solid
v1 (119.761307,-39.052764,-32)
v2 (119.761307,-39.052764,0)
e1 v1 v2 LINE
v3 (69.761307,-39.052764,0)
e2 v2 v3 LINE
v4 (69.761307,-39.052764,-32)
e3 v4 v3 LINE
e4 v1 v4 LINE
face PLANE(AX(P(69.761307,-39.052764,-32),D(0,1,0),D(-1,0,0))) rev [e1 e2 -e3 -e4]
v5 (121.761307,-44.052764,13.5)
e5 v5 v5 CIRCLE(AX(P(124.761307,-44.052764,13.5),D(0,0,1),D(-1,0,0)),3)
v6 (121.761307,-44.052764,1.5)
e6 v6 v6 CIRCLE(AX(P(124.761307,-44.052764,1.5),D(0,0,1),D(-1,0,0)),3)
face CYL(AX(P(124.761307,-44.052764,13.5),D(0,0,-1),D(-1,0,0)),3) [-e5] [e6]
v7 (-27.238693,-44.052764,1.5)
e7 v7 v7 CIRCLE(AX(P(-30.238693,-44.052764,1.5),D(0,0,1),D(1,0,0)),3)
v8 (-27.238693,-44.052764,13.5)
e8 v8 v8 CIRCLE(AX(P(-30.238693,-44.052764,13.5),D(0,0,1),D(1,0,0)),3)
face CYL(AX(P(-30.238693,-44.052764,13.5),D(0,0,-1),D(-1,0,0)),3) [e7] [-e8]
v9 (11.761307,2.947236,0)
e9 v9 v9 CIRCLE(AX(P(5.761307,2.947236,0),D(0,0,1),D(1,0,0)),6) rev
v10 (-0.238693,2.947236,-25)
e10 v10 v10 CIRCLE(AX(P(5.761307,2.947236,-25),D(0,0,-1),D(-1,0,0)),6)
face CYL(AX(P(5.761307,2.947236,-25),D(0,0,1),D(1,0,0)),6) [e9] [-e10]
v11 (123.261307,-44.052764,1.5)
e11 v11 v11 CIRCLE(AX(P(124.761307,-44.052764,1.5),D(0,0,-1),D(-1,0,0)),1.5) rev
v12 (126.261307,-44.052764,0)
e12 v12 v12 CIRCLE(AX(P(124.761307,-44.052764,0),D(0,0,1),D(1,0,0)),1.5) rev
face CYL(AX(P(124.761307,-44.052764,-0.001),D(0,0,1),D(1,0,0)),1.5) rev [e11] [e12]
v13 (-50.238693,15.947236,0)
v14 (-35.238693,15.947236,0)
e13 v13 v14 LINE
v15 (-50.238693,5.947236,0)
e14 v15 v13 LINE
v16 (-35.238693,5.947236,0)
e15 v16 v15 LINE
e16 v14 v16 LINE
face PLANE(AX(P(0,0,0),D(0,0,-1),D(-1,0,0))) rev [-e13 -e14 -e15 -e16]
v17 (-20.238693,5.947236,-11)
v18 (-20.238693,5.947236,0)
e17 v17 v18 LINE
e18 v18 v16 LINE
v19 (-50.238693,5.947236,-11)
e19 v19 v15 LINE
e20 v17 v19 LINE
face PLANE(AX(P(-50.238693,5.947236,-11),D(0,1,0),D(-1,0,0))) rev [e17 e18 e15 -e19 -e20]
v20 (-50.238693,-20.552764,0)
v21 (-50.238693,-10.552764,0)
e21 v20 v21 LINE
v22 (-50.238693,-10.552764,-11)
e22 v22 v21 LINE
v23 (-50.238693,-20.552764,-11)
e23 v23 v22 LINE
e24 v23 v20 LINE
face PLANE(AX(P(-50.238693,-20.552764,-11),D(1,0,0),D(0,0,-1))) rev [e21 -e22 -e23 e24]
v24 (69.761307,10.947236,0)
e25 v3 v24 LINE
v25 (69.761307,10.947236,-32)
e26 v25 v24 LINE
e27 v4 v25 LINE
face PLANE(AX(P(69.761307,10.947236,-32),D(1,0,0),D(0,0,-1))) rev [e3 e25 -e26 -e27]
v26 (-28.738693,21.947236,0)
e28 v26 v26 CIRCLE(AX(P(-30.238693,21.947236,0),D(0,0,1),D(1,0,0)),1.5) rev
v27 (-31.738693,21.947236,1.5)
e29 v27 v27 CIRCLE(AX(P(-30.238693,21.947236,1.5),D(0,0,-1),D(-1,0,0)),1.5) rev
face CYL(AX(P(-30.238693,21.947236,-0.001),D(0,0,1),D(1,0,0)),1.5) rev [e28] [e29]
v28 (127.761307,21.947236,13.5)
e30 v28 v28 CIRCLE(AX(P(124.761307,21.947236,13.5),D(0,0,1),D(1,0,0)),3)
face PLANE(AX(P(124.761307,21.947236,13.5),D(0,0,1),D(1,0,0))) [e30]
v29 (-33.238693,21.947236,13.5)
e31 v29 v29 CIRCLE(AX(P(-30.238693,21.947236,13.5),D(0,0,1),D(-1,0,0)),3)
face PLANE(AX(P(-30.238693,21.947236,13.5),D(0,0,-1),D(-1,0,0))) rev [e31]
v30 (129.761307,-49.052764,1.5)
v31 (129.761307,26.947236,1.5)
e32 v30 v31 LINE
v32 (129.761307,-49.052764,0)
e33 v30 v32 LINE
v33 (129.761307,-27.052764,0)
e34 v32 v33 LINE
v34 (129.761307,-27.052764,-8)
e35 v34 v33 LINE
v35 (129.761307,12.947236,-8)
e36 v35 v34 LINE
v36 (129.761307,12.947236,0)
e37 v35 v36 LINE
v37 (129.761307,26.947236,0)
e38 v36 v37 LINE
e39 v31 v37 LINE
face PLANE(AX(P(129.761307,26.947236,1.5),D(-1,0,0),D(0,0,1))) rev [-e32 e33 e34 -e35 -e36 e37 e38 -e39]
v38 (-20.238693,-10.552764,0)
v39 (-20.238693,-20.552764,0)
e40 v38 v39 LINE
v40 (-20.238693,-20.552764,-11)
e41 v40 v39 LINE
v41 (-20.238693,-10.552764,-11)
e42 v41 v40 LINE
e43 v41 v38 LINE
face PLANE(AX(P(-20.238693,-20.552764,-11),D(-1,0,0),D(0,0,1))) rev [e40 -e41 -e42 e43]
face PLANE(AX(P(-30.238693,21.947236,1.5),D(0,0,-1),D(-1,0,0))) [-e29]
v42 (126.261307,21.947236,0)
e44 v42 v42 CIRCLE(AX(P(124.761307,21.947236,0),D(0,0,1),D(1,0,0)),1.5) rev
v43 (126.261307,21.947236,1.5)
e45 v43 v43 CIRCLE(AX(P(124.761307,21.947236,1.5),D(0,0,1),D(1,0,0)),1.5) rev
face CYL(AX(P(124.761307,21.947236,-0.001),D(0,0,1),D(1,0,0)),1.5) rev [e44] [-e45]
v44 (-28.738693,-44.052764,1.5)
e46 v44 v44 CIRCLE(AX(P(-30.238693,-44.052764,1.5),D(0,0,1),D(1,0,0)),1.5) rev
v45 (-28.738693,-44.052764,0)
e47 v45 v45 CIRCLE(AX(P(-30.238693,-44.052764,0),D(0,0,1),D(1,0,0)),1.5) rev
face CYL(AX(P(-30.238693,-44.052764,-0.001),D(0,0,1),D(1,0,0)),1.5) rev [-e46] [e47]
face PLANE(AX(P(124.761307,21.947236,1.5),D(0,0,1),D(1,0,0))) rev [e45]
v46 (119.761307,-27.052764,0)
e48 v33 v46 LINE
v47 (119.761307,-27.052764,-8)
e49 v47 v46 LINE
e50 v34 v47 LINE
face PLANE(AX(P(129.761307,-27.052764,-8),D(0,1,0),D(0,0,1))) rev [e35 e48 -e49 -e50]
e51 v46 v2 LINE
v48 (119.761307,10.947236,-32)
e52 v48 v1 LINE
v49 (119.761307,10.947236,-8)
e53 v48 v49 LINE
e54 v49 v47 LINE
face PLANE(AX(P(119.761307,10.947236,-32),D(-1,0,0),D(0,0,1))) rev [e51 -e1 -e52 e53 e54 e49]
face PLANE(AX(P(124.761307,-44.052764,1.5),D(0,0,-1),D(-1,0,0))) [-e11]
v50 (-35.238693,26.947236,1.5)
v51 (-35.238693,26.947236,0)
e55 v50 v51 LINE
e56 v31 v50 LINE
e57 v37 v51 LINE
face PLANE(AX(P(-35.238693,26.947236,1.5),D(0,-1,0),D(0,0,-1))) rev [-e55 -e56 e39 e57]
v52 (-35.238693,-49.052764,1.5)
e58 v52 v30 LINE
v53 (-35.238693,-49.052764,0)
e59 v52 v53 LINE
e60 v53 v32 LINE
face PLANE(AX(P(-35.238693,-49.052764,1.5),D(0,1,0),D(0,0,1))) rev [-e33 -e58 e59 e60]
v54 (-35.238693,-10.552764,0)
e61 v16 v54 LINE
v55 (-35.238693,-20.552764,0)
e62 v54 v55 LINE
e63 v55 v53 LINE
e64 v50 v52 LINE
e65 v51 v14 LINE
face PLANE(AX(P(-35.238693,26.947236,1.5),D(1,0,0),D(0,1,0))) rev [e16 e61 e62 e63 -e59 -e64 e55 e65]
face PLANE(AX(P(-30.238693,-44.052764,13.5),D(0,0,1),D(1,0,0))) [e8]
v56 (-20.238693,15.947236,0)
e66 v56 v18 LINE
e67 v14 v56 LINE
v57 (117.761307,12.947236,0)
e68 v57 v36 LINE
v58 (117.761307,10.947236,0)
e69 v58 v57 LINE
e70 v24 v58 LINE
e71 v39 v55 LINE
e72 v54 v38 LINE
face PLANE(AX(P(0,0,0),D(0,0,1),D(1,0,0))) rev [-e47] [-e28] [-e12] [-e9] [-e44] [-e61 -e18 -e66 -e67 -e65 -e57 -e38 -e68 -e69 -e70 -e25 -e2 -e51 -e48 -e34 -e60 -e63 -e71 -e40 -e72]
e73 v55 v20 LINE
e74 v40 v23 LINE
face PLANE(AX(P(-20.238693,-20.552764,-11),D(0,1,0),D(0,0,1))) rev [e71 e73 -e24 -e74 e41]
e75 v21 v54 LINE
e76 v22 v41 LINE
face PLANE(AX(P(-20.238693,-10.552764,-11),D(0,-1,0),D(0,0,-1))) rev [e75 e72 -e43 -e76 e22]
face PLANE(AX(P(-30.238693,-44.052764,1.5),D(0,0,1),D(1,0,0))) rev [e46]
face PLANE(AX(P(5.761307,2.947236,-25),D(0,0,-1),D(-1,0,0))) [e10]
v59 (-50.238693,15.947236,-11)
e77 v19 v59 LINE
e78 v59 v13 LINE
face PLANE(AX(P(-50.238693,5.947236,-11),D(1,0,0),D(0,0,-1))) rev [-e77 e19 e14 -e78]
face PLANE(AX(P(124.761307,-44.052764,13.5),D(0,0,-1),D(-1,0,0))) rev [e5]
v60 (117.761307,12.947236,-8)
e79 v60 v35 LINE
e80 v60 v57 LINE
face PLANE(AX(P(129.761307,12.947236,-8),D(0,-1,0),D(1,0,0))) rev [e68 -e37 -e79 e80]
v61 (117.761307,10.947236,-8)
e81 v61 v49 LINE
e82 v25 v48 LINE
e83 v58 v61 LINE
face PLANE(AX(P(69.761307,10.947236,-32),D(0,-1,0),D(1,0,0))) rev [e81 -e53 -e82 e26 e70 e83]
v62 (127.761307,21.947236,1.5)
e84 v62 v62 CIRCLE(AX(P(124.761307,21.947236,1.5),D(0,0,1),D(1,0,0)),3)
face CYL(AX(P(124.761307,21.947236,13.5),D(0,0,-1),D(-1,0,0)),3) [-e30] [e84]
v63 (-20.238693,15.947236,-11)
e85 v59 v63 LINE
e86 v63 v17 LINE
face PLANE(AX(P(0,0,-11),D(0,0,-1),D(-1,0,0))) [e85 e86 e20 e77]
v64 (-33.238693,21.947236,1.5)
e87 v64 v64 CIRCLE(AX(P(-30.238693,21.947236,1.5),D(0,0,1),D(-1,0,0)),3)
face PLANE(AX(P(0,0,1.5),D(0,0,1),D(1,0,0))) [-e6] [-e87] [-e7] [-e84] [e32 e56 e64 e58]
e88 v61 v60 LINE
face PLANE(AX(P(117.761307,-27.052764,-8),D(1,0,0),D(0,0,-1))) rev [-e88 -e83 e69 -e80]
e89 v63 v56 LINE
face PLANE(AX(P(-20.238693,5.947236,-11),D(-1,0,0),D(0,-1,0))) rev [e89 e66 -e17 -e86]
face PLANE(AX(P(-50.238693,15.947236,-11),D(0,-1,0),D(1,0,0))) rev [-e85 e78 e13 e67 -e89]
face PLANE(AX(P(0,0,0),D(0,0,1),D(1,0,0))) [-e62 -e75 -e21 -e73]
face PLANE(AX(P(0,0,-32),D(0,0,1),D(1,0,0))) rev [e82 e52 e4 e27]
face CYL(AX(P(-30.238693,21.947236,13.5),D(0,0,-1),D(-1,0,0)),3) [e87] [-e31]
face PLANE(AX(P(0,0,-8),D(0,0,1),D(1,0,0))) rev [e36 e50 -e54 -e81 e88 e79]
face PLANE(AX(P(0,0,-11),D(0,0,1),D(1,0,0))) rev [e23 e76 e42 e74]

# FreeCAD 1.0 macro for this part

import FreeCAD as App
import Part
import Sketcher
Q = App.Units.Quantity

doc = App.newDocument("Part")
body = doc.addObject("PartDesign::Body", "Body")

sketch1 = doc.addObject("Sketcher::SketchObject", "Sketch")
body.addObject(sketch1)
sketch1.AttachmentSupport = (doc.XY_Plane, [""])
sketch1.MapMode = "FlatFace"
sketch1.addGeometry([
    Part.LineSegment(App.Vector(-35.238693, 26.947236, 0), App.Vector(-35.238693, -49.052764, 0)),
    Part.LineSegment(App.Vector(-35.238693, -49.052764, 0), App.Vector(129.761307, -49.052764, 0)),
    Part.LineSegment(App.Vector(129.761307, -49.052764, 0), App.Vector(129.761307, 26.947236, 0)),
    Part.LineSegment(App.Vector(129.761307, 26.947236, 0), App.Vector(-35.238693, 26.947236, 0)),
], False)
sketch1.addConstraint([
    Sketcher.Constraint("Coincident", 0, 2, 1, 1),
    Sketcher.Constraint("Coincident", 1, 2, 2, 1),
    Sketcher.Constraint("Coincident", 2, 2, 3, 1),
    Sketcher.Constraint("Coincident", 3, 2, 0, 1),
    Sketcher.Constraint("Vertical", 0),
    Sketcher.Constraint("Horizontal", 1),
    Sketcher.Constraint("Vertical", 2),
    Sketcher.Constraint("Horizontal", 3),
    Sketcher.Constraint("DistanceX", 1, 1, 1, 2, Q("165 mm")),
    Sketcher.Constraint("DistanceY", 0, 2, 0, 1, Q("76 mm")),
    Sketcher.Constraint("DistanceX", 0, 2, -1, 1, Q("35.238693 mm")),
    Sketcher.Constraint("DistanceY", 0, 2, -1, 1, Q("49.052764 mm")),
])
pad1 = doc.addObject("PartDesign::Pad", "Pad")
body.addObject(pad1)
pad1.Profile = sketch1
pad1.Length = 1.5

sketch2 = doc.addObject("Sketcher::SketchObject", "Sketch001")
body.addObject(sketch2)
sketch2.AttachmentSupport = (doc.XY_Plane, [""])
sketch2.MapMode = "FlatFace"
sketch2.AttachmentOffset = App.Placement(App.Vector(0, 0, 1.5), App.Rotation())
sketch2.addGeometry(Part.Circle(App.Vector(124.761307, 21.947236, 0), App.Vector(0, 0, 1), 1.5), False)
sketch2.addConstraint([
    Sketcher.Constraint("Diameter", 0, Q("3 mm")),
    Sketcher.Constraint("DistanceX", -1, 1, 0, 3, Q("124.761307 mm")),
    Sketcher.Constraint("DistanceY", -1, 1, 0, 3, Q("21.947236 mm")),
])
pocket1 = doc.addObject("PartDesign::Pocket", "Pocket")
body.addObject(pocket1)
pocket1.Profile = sketch2
pocket1.Type = "UpToFirst"

sketch3 = doc.addObject("Sketcher::SketchObject", "Sketch002")
body.addObject(sketch3)
sketch3.AttachmentSupport = (doc.XY_Plane, [""])
sketch3.MapMode = "FlatFace"
sketch3.AttachmentOffset = App.Placement(App.Vector(0, 0, 1.5), App.Rotation())
sketch3.addGeometry(Part.Circle(App.Vector(124.761307, -44.052764, 0), App.Vector(0, 0, 1), 1.5), False)
sketch3.addConstraint([
    Sketcher.Constraint("Diameter", 0, Q("3 mm")),
    Sketcher.Constraint("DistanceX", -1, 1, 0, 3, Q("124.761307 mm")),
    Sketcher.Constraint("DistanceY", 0, 3, -1, 1, Q("44.052764 mm")),
])
pocket2 = doc.addObject("PartDesign::Pocket", "Pocket001")
body.addObject(pocket2)
pocket2.Profile = sketch3
pocket2.Type = "UpToFirst"

sketch4 = doc.addObject("Sketcher::SketchObject", "Sketch003")
body.addObject(sketch4)
sketch4.AttachmentSupport = (doc.XY_Plane, [""])
sketch4.MapMode = "FlatFace"
sketch4.AttachmentOffset = App.Placement(App.Vector(0, 0, 1.5), App.Rotation())
sketch4.addGeometry(Part.Circle(App.Vector(-30.238693, -44.052764, 0), App.Vector(0, 0, 1), 1.5), False)
sketch4.addConstraint([
    Sketcher.Constraint("Diameter", 0, Q("3 mm")),
    Sketcher.Constraint("DistanceX", 0, 3, -1, 1, Q("30.238693 mm")),
    Sketcher.Constraint("DistanceY", 0, 3, -1, 1, Q("44.052764 mm")),
])
pocket3 = doc.addObject("PartDesign::Pocket", "Pocket002")
body.addObject(pocket3)
pocket3.Profile = sketch4
pocket3.Type = "UpToFirst"

sketch5 = doc.addObject("Sketcher::SketchObject", "Sketch004")
body.addObject(sketch5)
sketch5.AttachmentSupport = (doc.XY_Plane, [""])
sketch5.MapMode = "FlatFace"
sketch5.AttachmentOffset = App.Placement(App.Vector(0, 0, 1.5), App.Rotation())
sketch5.addGeometry(Part.Circle(App.Vector(-30.238693, 21.947236, 0), App.Vector(0, 0, 1), 1.5), False)
sketch5.addConstraint([
    Sketcher.Constraint("Diameter", 0, Q("3 mm")),
    Sketcher.Constraint("DistanceX", 0, 3, -1, 1, Q("30.238693 mm")),
    Sketcher.Constraint("DistanceY", -1, 1, 0, 3, Q("21.947236 mm")),
])
pocket4 = doc.addObject("PartDesign::Pocket", "Pocket003")
body.addObject(pocket4)
pocket4.Profile = sketch5
pocket4.Type = "UpToFirst"

sketch6 = doc.addObject("Sketcher::SketchObject", "Sketch005")
body.addObject(sketch6)
sketch6.AttachmentSupport = (doc.XY_Plane, [""])
sketch6.MapMode = "FlatFace"
sketch6.addGeometry([
    Part.LineSegment(App.Vector(129.761307, 12.947236, 0), App.Vector(129.761307, -27.052764, 0)),
    Part.LineSegment(App.Vector(129.761307, -27.052764, 0), App.Vector(117.761307, -27.052764, 0)),
    Part.LineSegment(App.Vector(117.761307, -27.052764, 0), App.Vector(117.761307, 12.947236, 0)),
    Part.LineSegment(App.Vector(117.761307, 12.947236, 0), App.Vector(129.761307, 12.947236, 0)),
], False)
sketch6.addConstraint([
    Sketcher.Constraint("Coincident", 0, 2, 1, 1),
    Sketcher.Constraint("Coincident", 1, 2, 2, 1),
    Sketcher.Constraint("Coincident", 2, 2, 3, 1),
    Sketcher.Constraint("Coincident", 3, 2, 0, 1),
    Sketcher.Constraint("Vertical", 0),
    Sketcher.Constraint("Horizontal", 1),
    Sketcher.Constraint("Vertical", 2),
    Sketcher.Constraint("Horizontal", 3),
    Sketcher.Constraint("DistanceX", 1, 2, 1, 1, Q("12 mm")),
    Sketcher.Constraint("DistanceY", 0, 2, 0, 1, Q("40 mm")),
    Sketcher.Constraint("DistanceX", -1, 1, 0, 2, Q("129.761307 mm")),
    Sketcher.Constraint("DistanceY", 0, 2, -1, 1, Q("27.052764 mm")),
])
pad2 = doc.addObject("PartDesign::Pad", "Pad001")
body.addObject(pad2)
pad2.Profile = sketch6
pad2.Length = 8
pad2.Reversed = True

sketch7 = doc.addObject("Sketcher::SketchObject", "Sketch006")
body.addObject(sketch7)
sketch7.AttachmentSupport = (doc.XY_Plane, [""])
sketch7.MapMode = "FlatFace"
sketch7.addGeometry([
    Part.LineSegment(App.Vector(119.761307, 10.947236, 0), App.Vector(119.761307, -39.052764, 0)),
    Part.LineSegment(App.Vector(119.761307, -39.052764, 0), App.Vector(69.761307, -39.052764, 0)),
    Part.LineSegment(App.Vector(69.761307, -39.052764, 0), App.Vector(69.761307, 10.947236, 0)),
    Part.LineSegment(App.Vector(69.761307, 10.947236, 0), App.Vector(119.761307, 10.947236, 0)),
], False)
sketch7.addConstraint([
    Sketcher.Constraint("Coincident", 0, 2, 1, 1),
    Sketcher.Constraint("Coincident", 1, 2, 2, 1),
    Sketcher.Constraint("Coincident", 2, 2, 3, 1),
    Sketcher.Constraint("Coincident", 3, 2, 0, 1),
    Sketcher.Constraint("Vertical", 0),
    Sketcher.Constraint("Horizontal", 1),
    Sketcher.Constraint("Vertical", 2),
    Sketcher.Constraint("Horizontal", 3),
    Sketcher.Constraint("Equal", 3, 0),
    Sketcher.Constraint("DistanceX", 1, 2, 1, 1, Q("50 mm")),
    Sketcher.Constraint("DistanceX", -1, 1, 0, 2, Q("119.761307 mm")),
    Sketcher.Constraint("DistanceY", 0, 2, -1, 1, Q("39.052764 mm")),
])
pad3 = doc.addObject("PartDesign::Pad", "Pad002")
body.addObject(pad3)
pad3.Profile = sketch7
pad3.Length = 32
pad3.Reversed = True

sketch8 = doc.addObject("Sketcher::SketchObject", "Sketch007")
body.addObject(sketch8)
sketch8.AttachmentSupport = (doc.XY_Plane, [""])
sketch8.MapMode = "FlatFace"
sketch8.addGeometry([
    Part.LineSegment(App.Vector(-20.238693, 15.947236, 0), App.Vector(-20.238693, 5.947236, 0)),
    Part.LineSegment(App.Vector(-20.238693, 5.947236, 0), App.Vector(-50.238693, 5.947236, 0)),
    Part.LineSegment(App.Vector(-50.238693, 5.947236, 0), App.Vector(-50.238693, 15.947236, 0)),
    Part.LineSegment(App.Vector(-50.238693, 15.947236, 0), App.Vector(-20.238693, 15.947236, 0)),
    Part.LineSegment(App.Vector(-20.238693, -10.552764, 0), App.Vector(-20.238693, -20.552764, 0)),
    Part.LineSegment(App.Vector(-20.238693, -20.552764, 0), App.Vector(-50.238693, -20.552764, 0)),
    Part.LineSegment(App.Vector(-50.238693, -20.552764, 0), App.Vector(-50.238693, -10.552764, 0)),
    Part.LineSegment(App.Vector(-50.238693, -10.552764, 0), App.Vector(-20.238693, -10.552764, 0)),
], False)
sketch8.addConstraint([
    Sketcher.Constraint("Coincident", 0, 2, 1, 1),
    Sketcher.Constraint("Coincident", 1, 2, 2, 1),
    Sketcher.Constraint("Coincident", 2, 2, 3, 1),
    Sketcher.Constraint("Coincident", 3, 2, 0, 1),
    Sketcher.Constraint("Coincident", 4, 2, 5, 1),
    Sketcher.Constraint("Coincident", 5, 2, 6, 1),
    Sketcher.Constraint("Coincident", 6, 2, 7, 1),
    Sketcher.Constraint("Coincident", 7, 2, 4, 1),
    Sketcher.Constraint("Vertical", 0),
    Sketcher.Constraint("Horizontal", 1),
    Sketcher.Constraint("Vertical", 2),
    Sketcher.Constraint("Horizontal", 3),
    Sketcher.Constraint("Vertical", 4),
    Sketcher.Constraint("Horizontal", 5),
    Sketcher.Constraint("Vertical", 6),
    Sketcher.Constraint("Horizontal", 7),
    Sketcher.Constraint("Vertical", 3, 2, 4, 2),
    Sketcher.Constraint("Vertical", 2, 2, 5, 2),
    Sketcher.Constraint("Equal", 2, 4),
    Sketcher.Constraint("DistanceX", 1, 2, 1, 1, Q("30 mm")),
    Sketcher.Constraint("DistanceY", 0, 2, 0, 1, Q("10 mm")),
    Sketcher.Constraint("DistanceY", 4, 2, 0, 2, Q("26.5 mm")),
    Sketcher.Constraint("DistanceX", 0, 2, -1, 1, Q("20.238693 mm")),
    Sketcher.Constraint("DistanceY", -1, 1, 0, 2, Q("5.947236 mm")),
])
pad4 = doc.addObject("PartDesign::Pad", "Pad003")
body.addObject(pad4)
pad4.Profile = sketch8
pad4.Length = 11
pad4.Reversed = True

sketch9 = doc.addObject("Sketcher::SketchObject", "Sketch008")
body.addObject(sketch9)
sketch9.AttachmentSupport = (doc.XY_Plane, [""])
sketch9.MapMode = "FlatFace"
sketch9.addGeometry(Part.Circle(App.Vector(5.761307, 2.947236, 0), App.Vector(0, 0, 1), 6), False)
sketch9.addConstraint([
    Sketcher.Constraint("Diameter", 0, Q("12 mm")),
    Sketcher.Constraint("DistanceX", -1, 1, 0, 3, Q("5.761307 mm")),
    Sketcher.Constraint("DistanceY", -1, 1, 0, 3, Q("2.947236 mm")),
])
pad5 = doc.addObject("PartDesign::Pad", "Pad004")
body.addObject(pad5)
pad5.Profile = sketch9
pad5.Length = 25
pad5.Reversed = True

sketch10 = doc.addObject("Sketcher::SketchObject", "Sketch009")
body.addObject(sketch10)
sketch10.AttachmentSupport = (doc.XY_Plane, [""])
sketch10.MapMode = "FlatFace"
sketch10.AttachmentOffset = App.Placement(App.Vector(0, 0, 1.5), App.Rotation())
sketch10.addGeometry([
    Part.Circle(App.Vector(124.761307, 21.947236, 0), App.Vector(0, 0, 1), 3),
    Part.Circle(App.Vector(124.761307, -44.052764, 0), App.Vector(0, 0, 1), 3),
    Part.Circle(App.Vector(-30.238693, 21.947236, 0), App.Vector(0, 0, 1), 3),
    Part.Circle(App.Vector(-30.238693, -44.052764, 0), App.Vector(0, 0, 1), 3),
], False)
sketch10.addConstraint([
    Sketcher.Constraint("Equal", 0, 1),
    Sketcher.Constraint("Equal", 1, 2),
    Sketcher.Constraint("Equal", 2, 3),
    Sketcher.Constraint("Horizontal", 0, 3, 2, 3),
    Sketcher.Constraint("Horizontal", 1, 3, 3, 3),
    Sketcher.Constraint("Vertical", 0, 3, 1, 3),
    Sketcher.Constraint("Vertical", 2, 3, 3, 3),
    Sketcher.Constraint("Diameter", 0, Q("6 mm")),
    Sketcher.Constraint("DistanceY", 1, 3, 0, 3, Q("66 mm")),
    Sketcher.Constraint("DistanceX", 2, 3, 0, 3, Q("155 mm")),
    Sketcher.Constraint("DistanceX", -1, 1, 0, 3, Q("124.761307 mm")),
    Sketcher.Constraint("DistanceY", -1, 1, 0, 3, Q("21.947236 mm")),
])
pad6 = doc.addObject("PartDesign::Pad", "Pad005")
body.addObject(pad6)
pad6.Profile = sketch10
pad6.Length = 12

doc.recompute()
